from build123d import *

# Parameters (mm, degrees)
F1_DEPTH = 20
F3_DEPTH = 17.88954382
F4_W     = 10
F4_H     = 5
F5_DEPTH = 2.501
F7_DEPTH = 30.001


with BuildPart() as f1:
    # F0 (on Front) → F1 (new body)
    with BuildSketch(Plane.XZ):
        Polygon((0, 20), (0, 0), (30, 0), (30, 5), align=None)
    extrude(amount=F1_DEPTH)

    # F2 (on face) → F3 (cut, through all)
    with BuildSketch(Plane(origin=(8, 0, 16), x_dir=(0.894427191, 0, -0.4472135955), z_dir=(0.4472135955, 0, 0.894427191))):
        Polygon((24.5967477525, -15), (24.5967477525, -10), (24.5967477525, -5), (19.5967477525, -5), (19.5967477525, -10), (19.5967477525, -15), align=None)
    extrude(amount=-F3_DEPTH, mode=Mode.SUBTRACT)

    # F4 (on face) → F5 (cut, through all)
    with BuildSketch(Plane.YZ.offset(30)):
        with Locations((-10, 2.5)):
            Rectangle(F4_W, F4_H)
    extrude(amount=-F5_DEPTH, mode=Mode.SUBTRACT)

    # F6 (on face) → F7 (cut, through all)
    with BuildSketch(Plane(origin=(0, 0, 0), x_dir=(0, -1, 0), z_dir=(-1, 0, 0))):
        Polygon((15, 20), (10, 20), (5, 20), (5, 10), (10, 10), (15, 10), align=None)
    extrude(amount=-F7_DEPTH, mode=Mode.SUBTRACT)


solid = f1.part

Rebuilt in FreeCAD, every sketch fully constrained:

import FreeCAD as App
import Part
import Sketcher
from FreeCAD import Vector
Q = App.Units.Quantity

doc = App.newDocument("Part")
params = doc.addObject("Spreadsheet::Sheet", "Params")
for row, (alias, value) in enumerate([
    ("sketch1_width", "30 mm"),
    ("sketch1_height", "20 mm"),
    ("sketch1_height2", "5 mm"),
    ("pad1_length", "20 mm"),
    ("sketch2_width", "5 mm"),
    ("sketch2_height", "10 mm"),
    ("sketch3_width", "10 mm"),
    ("sketch3_height", "5 mm"),
    ("pocket2_length", "2.501 mm"),
    ("sketch4_width", "10 mm"),
], start=1):
    params.set(f"A{row}", alias)
    params.set(f"B{row}", "=" + value)
    params.setAlias(f"B{row}", alias)

body = doc.addObject("PartDesign::Body", "Body")

sketch1 = doc.addObject("Sketcher::SketchObject", "Sketch")
body.addObject(sketch1)
sketch1.AttachmentSupport = (doc.XZ_Plane, [""])
sketch1.MapMode = "FlatFace"
sketch1.addGeometry(Part.LineSegment(Vector(0, 20, 0), Vector(0, 0, 0)), False)
sketch1.addGeometry(Part.LineSegment(Vector(0, 0, 0), Vector(30, 0, 0)), False)
sketch1.addGeometry(Part.LineSegment(Vector(30, 0, 0), Vector(30, 5, 0)), False)
sketch1.addGeometry(Part.LineSegment(Vector(30, 5, 0), Vector(0, 20, 0)), False)
sketch1.addConstraint(Sketcher.Constraint("Coincident", 0, 2, 1, 1))
sketch1.addConstraint(Sketcher.Constraint("Coincident", 1, 2, 2, 1))
sketch1.addConstraint(Sketcher.Constraint("Coincident", 2, 2, 3, 1))
sketch1.addConstraint(Sketcher.Constraint("Coincident", 3, 2, 0, 1))
sketch1.addConstraint(Sketcher.Constraint("Vertical", 0))
sketch1.addConstraint(Sketcher.Constraint("Horizontal", 1))
sketch1.addConstraint(Sketcher.Constraint("Vertical", 2))
sketch1.addConstraint(Sketcher.Constraint("Coincident", 0, 2, -1, 1))
sketch1.addConstraint(Sketcher.Constraint("DistanceX", 1, 1, 1, 2, Q("30 mm")))
sketch1.addConstraint(Sketcher.Constraint("DistanceY", 0, 2, 0, 1, Q("20 mm")))
sketch1.addConstraint(Sketcher.Constraint("DistanceY", 2, 1, 2, 2, Q("5 mm")))
sketch1.setExpression("Constraints[8]", "Params.sketch1_width")
sketch1.setExpression("Constraints[9]", "Params.sketch1_height")
sketch1.setExpression("Constraints[10]", "Params.sketch1_height2")
pad1 = doc.addObject("PartDesign::Pad", "Pad")
body.addObject(pad1)
pad1.Profile = sketch1
pad1.setExpression("Length", "Params.pad1_length")

sketch2 = doc.addObject("Sketcher::SketchObject", "Sketch001")
body.addObject(sketch2)
sketch2.Placement = App.Placement(Vector(8, 0, 16), App.Rotation(Vector(0.894427191, 0, -0.447213595), Vector(0, 1, 0), Vector(0.447213595, 0, 0.894427191), "ZXY"))
sketch2.addGeometry(Part.LineSegment(Vector(24.6, -15, 0), Vector(24.6, -5, 0)), False)
sketch2.addGeometry(Part.LineSegment(Vector(24.6, -5, 0), Vector(19.6, -5, 0)), False)
sketch2.addGeometry(Part.LineSegment(Vector(19.6, -5, 0), Vector(19.6, -15, 0)), False)
sketch2.addGeometry(Part.LineSegment(Vector(19.6, -15, 0), Vector(24.6, -15, 0)), False)
sketch2.addConstraint(Sketcher.Constraint("Coincident", 0, 2, 1, 1))
sketch2.addConstraint(Sketcher.Constraint("Coincident", 1, 2, 2, 1))
sketch2.addConstraint(Sketcher.Constraint("Coincident", 2, 2, 3, 1))
sketch2.addConstraint(Sketcher.Constraint("Coincident", 3, 2, 0, 1))
sketch2.addConstraint(Sketcher.Constraint("Vertical", 0))
sketch2.addConstraint(Sketcher.Constraint("Horizontal", 1))
sketch2.addConstraint(Sketcher.Constraint("Vertical", 2))
sketch2.addConstraint(Sketcher.Constraint("Horizontal", 3))
sketch2.addConstraint(Sketcher.Constraint("DistanceX", 1, 2, 1, 1, Q("5 mm")))
sketch2.addConstraint(Sketcher.Constraint("DistanceY", 0, 1, 0, 2, Q("10 mm")))
sketch2.addConstraint(Sketcher.Constraint("DistanceY", 0, 2, -1, 1, Q("5 mm")))
sketch2.addConstraint(Sketcher.Constraint("DistanceX", -1, 1, 0, 2, Q("24.596748 mm")))
sketch2.setExpression("Constraints[8]", "Params.sketch2_width")
sketch2.setExpression("Constraints[9]", "Params.sketch2_height")
pocket1 = doc.addObject("PartDesign::Pocket", "Pocket")
body.addObject(pocket1)
pocket1.Profile = sketch2
pocket1.Type = "ThroughAll"

sketch3 = doc.addObject("Sketcher::SketchObject", "Sketch002")
body.addObject(sketch3)
sketch3.AttachmentSupport = (doc.YZ_Plane, [""])
sketch3.MapMode = "FlatFace"
sketch3.AttachmentOffset = App.Placement(Vector(0, 0, 30), App.Rotation())
sketch3.addGeometry(Part.LineSegment(Vector(-15, 5, 0), Vector(-15, 0, 0)), False)
sketch3.addGeometry(Part.LineSegment(Vector(-15, 0, 0), Vector(-5, 0, 0)), False)
sketch3.addGeometry(Part.LineSegment(Vector(-5, 0, 0), Vector(-5, 5, 0)), False)
sketch3.addGeometry(Part.LineSegment(Vector(-5, 5, 0), Vector(-15, 5, 0)), False)
sketch3.addConstraint(Sketcher.Constraint("Coincident", 0, 2, 1, 1))
sketch3.addConstraint(Sketcher.Constraint("Coincident", 1, 2, 2, 1))
sketch3.addConstraint(Sketcher.Constraint("Coincident", 2, 2, 3, 1))
sketch3.addConstraint(Sketcher.Constraint("Coincident", 3, 2, 0, 1))
sketch3.addConstraint(Sketcher.Constraint("Vertical", 0))
sketch3.addConstraint(Sketcher.Constraint("Horizontal", 1))
sketch3.addConstraint(Sketcher.Constraint("Vertical", 2))
sketch3.addConstraint(Sketcher.Constraint("Horizontal", 3))
sketch3.addConstraint(Sketcher.Constraint("PointOnObject", 0, 2, -1))
sketch3.addConstraint(Sketcher.Constraint("DistanceX", 1, 1, 1, 2, Q("10 mm")))
sketch3.addConstraint(Sketcher.Constraint("DistanceY", 0, 2, 0, 1, Q("5 mm")))
sketch3.addConstraint(Sketcher.Constraint("DistanceX", 0, 2, -1, 1, Q("15 mm")))
sketch3.setExpression("Constraints[9]", "Params.sketch3_width")
sketch3.setExpression("Constraints[10]", "Params.sketch3_height")
pocket2 = doc.addObject("PartDesign::Pocket", "Pocket001")
body.addObject(pocket2)
pocket2.Profile = sketch3
pocket2.setExpression("Length", "Params.pocket2_length")

sketch4 = doc.addObject("Sketcher::SketchObject", "Sketch003")
body.addObject(sketch4)
sketch4.AttachmentSupport = (doc.YZ_Plane, [""])
sketch4.MapMode = "FlatFace"
sketch4.addGeometry(Part.LineSegment(Vector(-15, 20, 0), Vector(-5, 20, 0)), False)
sketch4.addGeometry(Part.LineSegment(Vector(-5, 20, 0), Vector(-5, 10, 0)), False)
sketch4.addGeometry(Part.LineSegment(Vector(-5, 10, 0), Vector(-15, 10, 0)), False)
sketch4.addGeometry(Part.LineSegment(Vector(-15, 10, 0), Vector(-15, 20, 0)), False)
sketch4.addConstraint(Sketcher.Constraint("Coincident", 0, 2, 1, 1))
sketch4.addConstraint(Sketcher.Constraint("Coincident", 1, 2, 2, 1))
sketch4.addConstraint(Sketcher.Constraint("Coincident", 2, 2, 3, 1))
sketch4.addConstraint(Sketcher.Constraint("Coincident", 3, 2, 0, 1))
sketch4.addConstraint(Sketcher.Constraint("Horizontal", 0))
sketch4.addConstraint(Sketcher.Constraint("Vertical", 1))
sketch4.addConstraint(Sketcher.Constraint("Horizontal", 2))
sketch4.addConstraint(Sketcher.Constraint("Vertical", 3))
sketch4.addConstraint(Sketcher.Constraint("Equal", 2, 1))
sketch4.addConstraint(Sketcher.Constraint("DistanceX", 0, 1, 0, 2, Q("10 mm")))
sketch4.addConstraint(Sketcher.Constraint("DistanceX", 0, 2, -1, 1, Q("5 mm")))
sketch4.addConstraint(Sketcher.Constraint("DistanceY", -1, 1, 0, 2, Q("20 mm")))
sketch4.setExpression("Constraints[9]", "Params.sketch4_width")
pocket3 = doc.addObject("PartDesign::Pocket", "Pocket002")
body.addObject(pocket3)
pocket3.Profile = sketch4
pocket3.Type = "ThroughAll"
pocket3.Reversed = True

doc.recompute()
